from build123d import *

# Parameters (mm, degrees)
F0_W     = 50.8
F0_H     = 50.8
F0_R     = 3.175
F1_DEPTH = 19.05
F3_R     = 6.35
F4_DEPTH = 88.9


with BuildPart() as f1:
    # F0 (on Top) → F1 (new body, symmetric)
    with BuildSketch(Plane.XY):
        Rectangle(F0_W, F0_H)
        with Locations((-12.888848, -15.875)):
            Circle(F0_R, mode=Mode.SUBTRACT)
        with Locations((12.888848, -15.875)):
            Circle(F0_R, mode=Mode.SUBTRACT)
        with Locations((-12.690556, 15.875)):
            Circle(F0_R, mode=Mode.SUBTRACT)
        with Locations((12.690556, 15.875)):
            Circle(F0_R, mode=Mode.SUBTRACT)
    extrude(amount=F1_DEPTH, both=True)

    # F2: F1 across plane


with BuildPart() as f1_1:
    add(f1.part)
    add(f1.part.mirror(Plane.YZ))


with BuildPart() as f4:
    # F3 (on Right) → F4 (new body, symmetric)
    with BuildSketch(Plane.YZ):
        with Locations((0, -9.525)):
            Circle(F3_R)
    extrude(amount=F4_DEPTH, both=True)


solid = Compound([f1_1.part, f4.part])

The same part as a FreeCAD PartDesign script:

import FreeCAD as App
import Part
import Sketcher
from FreeCAD import Vector
Q = App.Units.Quantity


def add_polygon(sketch, points):
    """Adds a closed chain of lines whose ends are joined by coincident constraints."""
    first, n = sketch.GeometryCount, len(points)
    for a, b in zip(points, points[1:] + points[:1]):
        sketch.addGeometry(Part.LineSegment(App.Vector(*a, 0), App.Vector(*b, 0)), False)
    for i in range(n):
        sketch.addConstraint(Sketcher.Constraint("Coincident", first + i, 2, first + (i + 1) % n, 1))

doc = App.newDocument("Part")
body = doc.addObject("PartDesign::Body", "Body")

# Sketch on XY plane
sketch1 = doc.addObject("Sketcher::SketchObject", "Sketch")
body.addObject(sketch1)
sketch1.AttachmentSupport = (doc.XY_Plane, [""])
sketch1.MapMode = "FlatFace"
add_polygon(sketch1, [(-25.4, 25.4), (-25.4, -25.4), (25.4, -25.4), (25.4, 25.4)])  # lines 0-3
sketch1.addGeometry(Part.Circle(Vector(-12.9, -15.9, 0), Vector(0, 0, 1), 3.2), False)  # 4
sketch1.addGeometry(Part.Circle(Vector(12.9, -15.9, 0), Vector(0, 0, 1), 3.2), False)  # 5
sketch1.addGeometry(Part.Circle(Vector(-12.7, 15.9, 0), Vector(0, 0, 1), 3.2), False)  # 6
sketch1.addGeometry(Part.Circle(Vector(12.7, 15.9, 0), Vector(0, 0, 1), 3.2), False)  # 7
sketch1.addConstraint([
    Sketcher.Constraint("Vertical", 0),
    Sketcher.Constraint("Horizontal", 1),
    Sketcher.Constraint("Vertical", 2),
    Sketcher.Constraint("Horizontal", 3),
    Sketcher.Constraint("Equal", 4, 5),
    Sketcher.Constraint("Equal", 5, 6),
    Sketcher.Constraint("Equal", 6, 7),
    Sketcher.Constraint("Symmetric", 0, 2, 2, 2, -1, 1),
    Sketcher.Constraint("Symmetric", 4, 3, 5, 3, -2),
    Sketcher.Constraint("Symmetric", 6, 3, 7, 3, -2),
    Sketcher.Constraint("Equal", 3, 0),
    Sketcher.Constraint("Diameter", 4, Q("0.25 in")),
    Sketcher.Constraint("DistanceX", 1, 1, 1, 2, Q("2 in")),
    Sketcher.Constraint("DistanceY", 4, 3, 6, 3, Q("1.25 in")),
    Sketcher.Constraint("DistanceY", 4, 3, -1, 1, Q("0.625 in")),
    Sketcher.Constraint("DistanceX", 4, 3, 6, 3, Q("0.198292 mm")),
    Sketcher.Constraint("DistanceX", 0, 2, 4, 3, Q("12.511152 mm")),
])
pad1 = doc.addObject("PartDesign::Pad", "Pad")
body.addObject(pad1)
pad1.Profile = sketch1
pad1.Length = Q("1.5 in")
pad1.Midplane = True
body2 = doc.addObject("PartDesign::Body", "Body001")
doc.recompute()

body2.BaseFeature = body
doc.recompute()

mirroring = doc.addObject("Part::Mirroring", "Mirroring")
mirroring.Source = body
mirroring.Base = Vector(0, 0, 0)
mirroring.Normal = Vector(1, 0, 0)
body3 = doc.addObject("PartDesign::Body", "Body002")
body3.BaseFeature = mirroring
boolean = doc.addObject("PartDesign::Boolean", "Boolean")
body2.addObject(boolean)
boolean.Type = "Fuse"
boolean.addObjects([body3])
doc.recompute()
body4 = doc.addObject("PartDesign::Body", "Body003")

# Sketch on YZ plane
sketch2 = doc.addObject("Sketcher::SketchObject", "Sketch001")
body4.addObject(sketch2)
sketch2.AttachmentSupport = (doc.getObject("YZ_Plane003"), [""])
sketch2.MapMode = "FlatFace"
sketch2.addGeometry(Part.Circle(Vector(0, -10, 0), Vector(0, 0, 1), 6), False)
sketch2.addConstraint([
    Sketcher.Constraint("PointOnObject", 0, 3, -2),
    Sketcher.Constraint("Diameter", 0, Q("0.5 in")),
    Sketcher.Constraint("DistanceY", 0, 3, -1, 1, Q("0.375 in")),
])
pad2 = doc.addObject("PartDesign::Pad", "Pad001")
body4.addObject(pad2)
pad2.Profile = sketch2
pad2.Length = Q("7 in")
pad2.Midplane = True
mirroring.Visibility = False

doc.recompute()
